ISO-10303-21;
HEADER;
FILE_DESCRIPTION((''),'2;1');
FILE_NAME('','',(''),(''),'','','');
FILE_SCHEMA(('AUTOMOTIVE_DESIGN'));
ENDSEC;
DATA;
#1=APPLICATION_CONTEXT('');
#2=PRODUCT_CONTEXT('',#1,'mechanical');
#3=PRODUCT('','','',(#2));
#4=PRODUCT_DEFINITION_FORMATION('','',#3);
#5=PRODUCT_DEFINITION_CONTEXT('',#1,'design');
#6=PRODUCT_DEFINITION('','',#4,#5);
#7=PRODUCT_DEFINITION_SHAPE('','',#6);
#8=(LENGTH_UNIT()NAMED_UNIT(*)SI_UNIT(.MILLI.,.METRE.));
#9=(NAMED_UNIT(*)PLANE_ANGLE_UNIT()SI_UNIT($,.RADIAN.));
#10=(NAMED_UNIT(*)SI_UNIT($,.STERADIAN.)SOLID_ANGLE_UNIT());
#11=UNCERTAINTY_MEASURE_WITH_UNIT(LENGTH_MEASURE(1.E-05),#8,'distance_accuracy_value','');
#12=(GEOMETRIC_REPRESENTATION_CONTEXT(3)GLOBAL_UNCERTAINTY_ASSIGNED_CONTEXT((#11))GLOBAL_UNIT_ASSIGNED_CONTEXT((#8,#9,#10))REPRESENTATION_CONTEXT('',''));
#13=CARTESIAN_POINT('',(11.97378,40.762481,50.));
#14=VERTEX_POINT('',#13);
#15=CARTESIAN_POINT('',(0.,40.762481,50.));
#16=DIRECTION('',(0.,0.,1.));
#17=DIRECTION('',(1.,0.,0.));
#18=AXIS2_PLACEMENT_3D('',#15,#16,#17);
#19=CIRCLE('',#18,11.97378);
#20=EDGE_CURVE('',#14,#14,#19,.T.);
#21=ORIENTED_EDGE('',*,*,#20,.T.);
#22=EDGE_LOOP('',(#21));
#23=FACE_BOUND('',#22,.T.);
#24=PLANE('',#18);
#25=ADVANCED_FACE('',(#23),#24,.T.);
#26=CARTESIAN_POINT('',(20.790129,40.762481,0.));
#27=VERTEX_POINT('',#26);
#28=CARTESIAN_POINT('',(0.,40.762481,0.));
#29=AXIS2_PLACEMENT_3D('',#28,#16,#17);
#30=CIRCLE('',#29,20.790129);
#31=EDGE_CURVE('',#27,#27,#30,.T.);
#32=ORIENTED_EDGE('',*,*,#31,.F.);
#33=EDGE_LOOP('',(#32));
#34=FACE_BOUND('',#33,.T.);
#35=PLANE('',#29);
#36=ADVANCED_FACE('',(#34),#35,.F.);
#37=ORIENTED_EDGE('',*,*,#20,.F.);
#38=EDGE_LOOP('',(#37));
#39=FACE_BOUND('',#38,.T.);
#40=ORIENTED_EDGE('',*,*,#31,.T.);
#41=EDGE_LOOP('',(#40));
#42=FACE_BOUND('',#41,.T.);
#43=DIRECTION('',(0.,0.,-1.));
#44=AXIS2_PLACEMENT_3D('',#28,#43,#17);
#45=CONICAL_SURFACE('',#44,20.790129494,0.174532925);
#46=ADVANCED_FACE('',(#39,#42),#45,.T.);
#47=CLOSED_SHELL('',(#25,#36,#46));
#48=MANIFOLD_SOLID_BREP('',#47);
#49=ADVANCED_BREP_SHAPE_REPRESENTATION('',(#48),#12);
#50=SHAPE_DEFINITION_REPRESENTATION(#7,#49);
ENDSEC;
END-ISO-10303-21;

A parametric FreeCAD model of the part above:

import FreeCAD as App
import Part
import Sketcher

doc = App.newDocument("Part")
body = doc.addObject("PartDesign::Body", "Body")

# Sketch on XY plane
sketch1 = doc.addObject("Sketcher::SketchObject", "Sketch")
body.addObject(sketch1)
sketch1.AttachmentSupport = (doc.XY_Plane, [""])
sketch1.MapMode = "FlatFace"
sketch1.addGeometry(Part.Circle(App.Vector(0, 40.762481, 0), App.Vector(0, 0, 1), 20.790129), False)
sketch1.addConstraint(Sketcher.Constraint("PointOnObject", 0, 3, -2))
sketch1.addConstraint(Sketcher.Constraint("Diameter", 0, 41.580259))
sketch1.addConstraint(Sketcher.Constraint("DistanceY", -1, 1, 0, 3, 40.762481))
pad1 = doc.addObject("PartDesign::Pad", "Pad")
body.addObject(pad1)
pad1.Profile = sketch1
pad1.Length = 50
pad1.TaperAngle = -10

doc.recompute()
